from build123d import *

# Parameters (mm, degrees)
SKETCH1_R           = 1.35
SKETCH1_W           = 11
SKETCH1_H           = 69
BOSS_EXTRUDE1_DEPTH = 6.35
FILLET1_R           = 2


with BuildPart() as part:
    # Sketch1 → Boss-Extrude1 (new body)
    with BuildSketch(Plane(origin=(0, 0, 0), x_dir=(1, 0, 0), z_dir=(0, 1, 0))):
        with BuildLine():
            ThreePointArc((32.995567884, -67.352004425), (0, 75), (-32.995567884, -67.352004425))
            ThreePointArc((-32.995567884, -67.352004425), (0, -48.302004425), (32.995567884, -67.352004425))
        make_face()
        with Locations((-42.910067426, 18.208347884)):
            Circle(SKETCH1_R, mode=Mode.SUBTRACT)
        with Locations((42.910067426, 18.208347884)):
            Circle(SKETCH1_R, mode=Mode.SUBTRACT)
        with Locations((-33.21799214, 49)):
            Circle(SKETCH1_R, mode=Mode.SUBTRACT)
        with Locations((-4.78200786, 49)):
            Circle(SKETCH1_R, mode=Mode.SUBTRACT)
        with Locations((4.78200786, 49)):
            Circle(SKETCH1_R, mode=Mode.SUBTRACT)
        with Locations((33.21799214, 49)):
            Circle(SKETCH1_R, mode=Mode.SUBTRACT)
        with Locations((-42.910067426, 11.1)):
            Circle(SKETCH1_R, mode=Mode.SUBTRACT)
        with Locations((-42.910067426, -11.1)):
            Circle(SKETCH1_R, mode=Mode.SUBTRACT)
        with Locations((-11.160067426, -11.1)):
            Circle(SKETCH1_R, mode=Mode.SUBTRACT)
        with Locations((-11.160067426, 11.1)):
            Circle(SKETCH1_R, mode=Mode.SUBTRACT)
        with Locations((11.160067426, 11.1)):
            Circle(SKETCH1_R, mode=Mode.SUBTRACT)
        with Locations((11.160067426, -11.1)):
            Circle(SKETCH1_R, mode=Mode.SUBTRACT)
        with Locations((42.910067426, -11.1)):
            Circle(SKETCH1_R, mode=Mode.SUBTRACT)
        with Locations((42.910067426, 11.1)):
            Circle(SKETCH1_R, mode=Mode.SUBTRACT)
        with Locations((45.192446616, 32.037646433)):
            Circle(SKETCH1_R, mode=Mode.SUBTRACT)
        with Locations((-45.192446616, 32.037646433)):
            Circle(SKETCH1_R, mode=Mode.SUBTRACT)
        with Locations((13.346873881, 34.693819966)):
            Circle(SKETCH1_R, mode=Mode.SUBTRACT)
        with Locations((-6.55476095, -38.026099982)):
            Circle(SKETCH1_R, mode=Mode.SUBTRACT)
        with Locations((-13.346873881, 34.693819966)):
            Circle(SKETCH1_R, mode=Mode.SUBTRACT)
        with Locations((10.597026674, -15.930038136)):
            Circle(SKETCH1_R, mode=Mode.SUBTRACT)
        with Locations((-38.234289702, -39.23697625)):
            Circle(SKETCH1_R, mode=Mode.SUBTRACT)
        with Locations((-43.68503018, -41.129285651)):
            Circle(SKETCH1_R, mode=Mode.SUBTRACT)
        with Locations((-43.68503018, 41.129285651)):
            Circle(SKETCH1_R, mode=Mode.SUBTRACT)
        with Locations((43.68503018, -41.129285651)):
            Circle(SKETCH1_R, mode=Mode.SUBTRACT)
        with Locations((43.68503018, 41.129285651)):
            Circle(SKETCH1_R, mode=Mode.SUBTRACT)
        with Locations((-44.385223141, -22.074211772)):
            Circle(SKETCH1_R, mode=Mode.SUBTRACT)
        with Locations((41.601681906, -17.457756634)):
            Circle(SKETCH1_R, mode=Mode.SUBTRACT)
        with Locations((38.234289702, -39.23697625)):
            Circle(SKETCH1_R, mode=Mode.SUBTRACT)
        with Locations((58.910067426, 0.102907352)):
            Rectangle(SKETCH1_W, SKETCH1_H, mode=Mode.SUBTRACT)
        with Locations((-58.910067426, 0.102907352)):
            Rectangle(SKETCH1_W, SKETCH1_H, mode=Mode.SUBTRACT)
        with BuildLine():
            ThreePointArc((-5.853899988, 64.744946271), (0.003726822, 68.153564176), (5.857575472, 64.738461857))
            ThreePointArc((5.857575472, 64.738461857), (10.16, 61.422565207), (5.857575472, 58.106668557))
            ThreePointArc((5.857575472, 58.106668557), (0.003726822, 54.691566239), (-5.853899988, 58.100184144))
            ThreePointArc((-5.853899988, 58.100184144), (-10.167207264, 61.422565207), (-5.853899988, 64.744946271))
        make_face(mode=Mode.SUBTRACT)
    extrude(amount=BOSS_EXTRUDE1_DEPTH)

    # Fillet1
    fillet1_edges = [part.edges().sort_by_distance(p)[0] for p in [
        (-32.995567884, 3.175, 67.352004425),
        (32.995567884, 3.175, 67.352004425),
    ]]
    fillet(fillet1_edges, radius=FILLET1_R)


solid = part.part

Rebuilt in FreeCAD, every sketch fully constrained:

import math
import FreeCAD as App
import Part
import Sketcher
from FreeCAD import Vector
Q = App.Units.Quantity


def edges_at(feature, points):
    """Names of the edges that pass closest to the given points."""
    edges = feature.Shape.Edges
    near = lambda p: min(range(len(edges)), key=lambda i: edges[i].distToShape(Part.Vertex(*p))[0])
    return sorted({f"Edge{near(p) + 1}" for p in points})

doc = App.newDocument("Part")
body = doc.addObject("PartDesign::Body", "Body")

sketch1 = doc.addObject("Sketcher::SketchObject", "Sketch")
body.addObject(sketch1)
sketch1.AttachmentSupport = (doc.XZ_Plane, [""])
sketch1.MapMode = "FlatFace"
sketch1.addGeometry([
    Part.ArcOfCircle(Part.Circle(Vector(0, 0, 0), Vector(0, 0, 1), 75), math.radians(116.100111), math.radians(423.899889)),
    Part.ArcOfCircle(Part.Circle(Vector(0, 86.402004, 0), Vector(0, 0, 1), 38.1), math.radians(-150), math.radians(-30)),
    Part.Circle(Vector(-43.68503, 41.129286, 0), Vector(0, 0, 1), 1.35),
    Part.Circle(Vector(-38.23429, 39.236976, 0), Vector(0, 0, 1), 1.35),
    Part.Circle(Vector(-44.385223, 22.074212, 0), Vector(0, 0, 1), 1.35),
    Part.Circle(Vector(-6.554761, 38.0261, 0), Vector(0, 0, 1), 1.35),
    Part.Circle(Vector(-42.910067, 11.1, 0), Vector(0, 0, 1), 1.35),
    Part.LineSegment(Vector(-53.410067, 34.397093, 0), Vector(-64.410067, 34.397093, 0)),
    Part.LineSegment(Vector(-64.410067, 34.397093, 0), Vector(-64.410067, -34.602907, 0)),
    Part.LineSegment(Vector(-64.410067, -34.602907, 0), Vector(-53.410067, -34.602907, 0)),
    Part.LineSegment(Vector(-53.410067, -34.602907, 0), Vector(-53.410067, 34.397093, 0)),
    Part.Circle(Vector(-42.910067, -11.1, 0), Vector(0, 0, 1), 1.35),
    Part.Circle(Vector(-11.160067, 11.1, 0), Vector(0, 0, 1), 1.35),
    Part.Circle(Vector(-11.160067, -11.1, 0), Vector(0, 0, 1), 1.35),
    Part.Circle(Vector(10.597027, 15.930038, 0), Vector(0, 0, 1), 1.35),
    Part.Circle(Vector(38.23429, 39.236976, 0), Vector(0, 0, 1), 1.35),
    Part.Circle(Vector(43.68503, 41.129286, 0), Vector(0, 0, 1), 1.35),
    Part.Circle(Vector(41.601682, 17.457757, 0), Vector(0, 0, 1), 1.35),
    Part.Circle(Vector(11.160067, 11.1, 0), Vector(0, 0, 1), 1.35),
    Part.Circle(Vector(11.160067, -11.1, 0), Vector(0, 0, 1), 1.35),
    Part.Circle(Vector(42.910067, 11.1, 0), Vector(0, 0, 1), 1.35),
    Part.Circle(Vector(42.910067, -11.1, 0), Vector(0, 0, 1), 1.35),
    Part.LineSegment(Vector(64.410067, 34.397093, 0), Vector(53.410067, 34.397093, 0)),
    Part.LineSegment(Vector(53.410067, 34.397093, 0), Vector(53.410067, -34.602907, 0)),
    Part.LineSegment(Vector(53.410067, -34.602907, 0), Vector(64.410067, -34.602907, 0)),
    Part.LineSegment(Vector(64.410067, -34.602907, 0), Vector(64.410067, 34.397093, 0)),
    Part.Circle(Vector(-42.910067, -18.208348, 0), Vector(0, 0, 1), 1.35),
    Part.Circle(Vector(-45.192447, -32.037646, 0), Vector(0, 0, 1), 1.35),
    Part.Circle(Vector(-13.346874, -34.69382, 0), Vector(0, 0, 1), 1.35),
    Part.Circle(Vector(-43.68503, -41.129286, 0), Vector(0, 0, 1), 1.35),
    Part.Circle(Vector(-33.217992, -49, 0), Vector(0, 0, 1), 1.35),
    Part.Circle(Vector(-4.782008, -49, 0), Vector(0, 0, 1), 1.35),
    Part.ArcOfCircle(Part.Circle(Vector(-6.731, -61.422565, 0), Vector(0, 0, 1), 3.436207), math.radians(75.211461), math.radians(284.788539)),
    Part.ArcOfCircle(Part.Circle(Vector(0, -61.422565, 0), Vector(0, 0, 1), 6.731), math.radians(-150.422922), math.radians(-29.513631)),
    Part.ArcOfCircle(Part.Circle(Vector(6.731, -61.422565, 0), Vector(0, 0, 1), 3.429), math.radians(-104.756816), math.radians(104.756816)),
    Part.ArcOfCircle(Part.Circle(Vector(0, -61.422565, 0), Vector(0, 0, 1), 6.731), math.radians(29.513631), math.radians(150.422922)),
    Part.Circle(Vector(13.346874, -34.69382, 0), Vector(0, 0, 1), 1.35),
    Part.Circle(Vector(42.910067, -18.208348, 0), Vector(0, 0, 1), 1.35),
    Part.Circle(Vector(45.192447, -32.037646, 0), Vector(0, 0, 1), 1.35),
    Part.Circle(Vector(4.782008, -49, 0), Vector(0, 0, 1), 1.35),
    Part.Circle(Vector(43.68503, -41.129286, 0), Vector(0, 0, 1), 1.35),
    Part.Circle(Vector(33.217992, -49, 0), Vector(0, 0, 1), 1.35),
], False)
sketch1.addConstraint([
    Sketcher.Constraint("Coincident", 0, 1, 1, 1),
    Sketcher.Constraint("Coincident", 1, 2, 0, 2),
    Sketcher.Constraint("Coincident", 7, 2, 8, 1),
    Sketcher.Constraint("Coincident", 8, 2, 9, 1),
    Sketcher.Constraint("Coincident", 9, 2, 10, 1),
    Sketcher.Constraint("Coincident", 10, 2, 7, 1),
    Sketcher.Constraint("Coincident", 22, 2, 23, 1),
    Sketcher.Constraint("Coincident", 23, 2, 24, 1),
    Sketcher.Constraint("Coincident", 24, 2, 25, 1),
    Sketcher.Constraint("Coincident", 25, 2, 22, 1),
    Sketcher.Constraint("Coincident", 32, 2, 33, 1),
    Sketcher.Constraint("Coincident", 33, 2, 34, 1),
    Sketcher.Constraint("Coincident", 34, 2, 35, 1),
    Sketcher.Constraint("Coincident", 35, 2, 32, 1),
    Sketcher.Constraint("Horizontal", 7),
    Sketcher.Constraint("Vertical", 8),
    Sketcher.Constraint("Horizontal", 9),
    Sketcher.Constraint("Vertical", 10),
    Sketcher.Constraint("Horizontal", 22),
    Sketcher.Constraint("Vertical", 23),
    Sketcher.Constraint("Horizontal", 24),
    Sketcher.Constraint("Vertical", 25),
    Sketcher.Constraint("Coincident", 0, 3, -1, 1),
    Sketcher.Constraint("Coincident", 35, 3, 33, 3),
    Sketcher.Constraint("Equal", 2, 3),
    Sketcher.Constraint("Equal", 3, 4),
    Sketcher.Constraint("Equal", 4, 5),
    Sketcher.Constraint("Equal", 5, 6),
    Sketcher.Constraint("Equal", 6, 11),
    Sketcher.Constraint("Equal", 11, 12),
    Sketcher.Constraint("Equal", 12, 13),
    Sketcher.Constraint("Equal", 13, 14),
    Sketcher.Constraint("Equal", 14, 15),
    Sketcher.Constraint("Equal", 15, 16),
    Sketcher.Constraint("Equal", 16, 17),
    Sketcher.Constraint("Equal", 17, 18),
    Sketcher.Constraint("Equal", 18, 19),
    Sketcher.Constraint("Equal", 19, 20),
    Sketcher.Constraint("Equal", 20, 21),
    Sketcher.Constraint("Equal", 21, 26),
    Sketcher.Constraint("Equal", 26, 27),
    Sketcher.Constraint("Equal", 27, 28),
    Sketcher.Constraint("Equal", 28, 29),
    Sketcher.Constraint("Equal", 29, 30),
    Sketcher.Constraint("Equal", 30, 31),
    Sketcher.Constraint("Equal", 33, 35),
    Sketcher.Constraint("Equal", 31, 36),
    Sketcher.Constraint("Equal", 36, 37),
    Sketcher.Constraint("Equal", 37, 38),
    Sketcher.Constraint("Equal", 38, 39),
    Sketcher.Constraint("Equal", 39, 40),
    Sketcher.Constraint("Equal", 40, 41),
    Sketcher.Constraint("Symmetric", 13, 3, 18, 3, -1, 1),
    Sketcher.Constraint("Symmetric", 12, 3, 19, 3, -1, 1),
    Sketcher.Constraint("Symmetric", 11, 3, 20, 3, -1, 1),
    Sketcher.Constraint("Symmetric", 6, 3, 21, 3, -1, 1),
    Sketcher.Constraint("Symmetric", 16, 3, 29, 3, -1, 1),
    Sketcher.Constraint("Symmetric", 2, 3, 40, 3, -1, 1),
    Sketcher.Constraint("Symmetric", 3, 3, 15, 3, -2),
    Sketcher.Constraint("Symmetric", 2, 3, 16, 3, -2),
    Sketcher.Constraint("Symmetric", 12, 3, 18, 3, -2),
    Sketcher.Constraint("Symmetric", 6, 3, 20, 3, -2),
    Sketcher.Constraint("Symmetric", 32, 3, 34, 3, -2),
    Sketcher.Constraint("Symmetric", 28, 3, 36, 3, -2),
    Sketcher.Constraint("Symmetric", 26, 3, 37, 3, -2),
    Sketcher.Constraint("Symmetric", 27, 3, 38, 3, -2),
    Sketcher.Constraint("Symmetric", 31, 3, 39, 3, -2),
    Sketcher.Constraint("Symmetric", 30, 3, 41, 3, -2),
    Sketcher.Constraint("Symmetric", 10, 2, 22, 2, -2),
    Sketcher.Constraint("Symmetric", 8, 2, 24, 2, -2),
    Sketcher.Constraint("PointOnObject", 1, 3, -2),
    Sketcher.Constraint("PointOnObject", 33, 3, -2),
    Sketcher.Constraint("Horizontal", 6, 3, 12, 3),
    Sketcher.Constraint("Horizontal", 30, 3, 31, 3),
    Sketcher.Constraint("Horizontal", 32, 3, 33, 3),
    Sketcher.Constraint("Vertical", 11, 3, 26, 3),
    Sketcher.Constraint("Radius", 0, Q("75 mm")),
    Sketcher.Constraint("Diameter", 2, Q("2.7 mm")),
    Sketcher.Constraint("Radius", 1, Q("38.1 mm")),
    Sketcher.Constraint("DistanceX", 7, 2, 7, 1, Q("11 mm")),
    Sketcher.Constraint("DistanceY", 8, 2, 8, 1, Q("69 mm")),
    Sketcher.Constraint("DistanceY", 30, 3, -1, 1, Q("49 mm")),
    Sketcher.Constraint("Radius", 33, Q("6.731 mm")),
    Sketcher.Constraint("Radius", 34, Q("3.429 mm")),
    Sketcher.Constraint("DistanceY", -1, 1, 6, 3, Q("11.1 mm")),
    Sketcher.Constraint("DistanceX", 7, 2, 6, 3, Q("21.5 mm")),
    Sketcher.Constraint("DistanceX", 6, 3, 12, 3, Q("31.75 mm")),
    Sketcher.Constraint("DistanceY", 0, 1, 1, 3, Q("19.05 mm")),
    Sketcher.Constraint("DistanceX", 32, 3, -1, 1, Q("6.731 mm")),
    Sketcher.Constraint("Radius", 32, Q("3.436207 mm")),
    Sketcher.Constraint("DistanceY", -1, 1, 5, 3, Q("38.0261 mm")),
    Sketcher.Constraint("DistanceY", 27, 3, 26, 3, Q("13.829299 mm")),
    Sketcher.Constraint("DistanceX", 7, 2, 0, 1, Q("31.4145 mm")),
    Sketcher.Constraint("DistanceX", 2, 3, -1, 1, Q("43.68503 mm")),
    Sketcher.Constraint("DistanceX", 3, 3, -1, 1, Q("38.23429 mm")),
    Sketcher.Constraint("DistanceY", -1, 1, 4, 3, Q("22.074212 mm")),
    Sketcher.Constraint("DistanceX", 5, 3, -1, 1, Q("6.554761 mm")),
    Sketcher.Constraint("DistanceY", -1, 1, 14, 3, Q("15.930038 mm")),
    Sketcher.Constraint("DistanceX", -1, 1, 17, 3, Q("41.601682 mm")),
    Sketcher.Constraint("DistanceY", 28, 3, -1, 1, Q("34.69382 mm")),
    Sketcher.Constraint("DistanceY", 33, 2, -1, 1, Q("64.738462 mm")),
    Sketcher.Constraint("DistanceY", 2, 3, 1, 3, Q("45.272719 mm")),
    Sketcher.Constraint("DistanceY", 3, 3, 2, 3, Q("1.892309 mm")),
    Sketcher.Constraint("DistanceY", 17, 3, 15, 3, Q("21.77922 mm")),
    Sketcher.Constraint("DistanceX", 14, 3, 18, 3, Q("0.563041 mm")),
    Sketcher.Constraint("DistanceY", 26, 3, 4, 3, Q("40.28256 mm")),
    Sketcher.Constraint("DistanceX", 27, 3, 26, 3, Q("2.282379 mm")),
    Sketcher.Constraint("DistanceX", 28, 3, 19, 3, Q("24.506941 mm")),
    Sketcher.Constraint("DistanceX", 29, 3, 30, 3, Q("10.467038 mm")),
    Sketcher.Constraint("DistanceX", 13, 3, 31, 3, Q("6.37806 mm")),
    Sketcher.Constraint("DistanceY", 4, 3, 7, 2, Q("12.322881 mm")),
    Sketcher.Constraint("DistanceX", 4, 3, -1, 1, Q("44.385223 mm")),
])
pad1 = doc.addObject("PartDesign::Pad", "Pad")
body.addObject(pad1)
pad1.Profile = sketch1
pad1.Length = 6.35
pad1.Reversed = True
doc.recompute()

fillet = doc.addObject("PartDesign::Fillet", "Fillet")
body.addObject(fillet)
fillet.Base = (pad1, edges_at(pad1, [(-32.996, 3.175, 67.352), (32.996, 3.175, 67.352)]))
fillet.Radius = 2

doc.recompute()
